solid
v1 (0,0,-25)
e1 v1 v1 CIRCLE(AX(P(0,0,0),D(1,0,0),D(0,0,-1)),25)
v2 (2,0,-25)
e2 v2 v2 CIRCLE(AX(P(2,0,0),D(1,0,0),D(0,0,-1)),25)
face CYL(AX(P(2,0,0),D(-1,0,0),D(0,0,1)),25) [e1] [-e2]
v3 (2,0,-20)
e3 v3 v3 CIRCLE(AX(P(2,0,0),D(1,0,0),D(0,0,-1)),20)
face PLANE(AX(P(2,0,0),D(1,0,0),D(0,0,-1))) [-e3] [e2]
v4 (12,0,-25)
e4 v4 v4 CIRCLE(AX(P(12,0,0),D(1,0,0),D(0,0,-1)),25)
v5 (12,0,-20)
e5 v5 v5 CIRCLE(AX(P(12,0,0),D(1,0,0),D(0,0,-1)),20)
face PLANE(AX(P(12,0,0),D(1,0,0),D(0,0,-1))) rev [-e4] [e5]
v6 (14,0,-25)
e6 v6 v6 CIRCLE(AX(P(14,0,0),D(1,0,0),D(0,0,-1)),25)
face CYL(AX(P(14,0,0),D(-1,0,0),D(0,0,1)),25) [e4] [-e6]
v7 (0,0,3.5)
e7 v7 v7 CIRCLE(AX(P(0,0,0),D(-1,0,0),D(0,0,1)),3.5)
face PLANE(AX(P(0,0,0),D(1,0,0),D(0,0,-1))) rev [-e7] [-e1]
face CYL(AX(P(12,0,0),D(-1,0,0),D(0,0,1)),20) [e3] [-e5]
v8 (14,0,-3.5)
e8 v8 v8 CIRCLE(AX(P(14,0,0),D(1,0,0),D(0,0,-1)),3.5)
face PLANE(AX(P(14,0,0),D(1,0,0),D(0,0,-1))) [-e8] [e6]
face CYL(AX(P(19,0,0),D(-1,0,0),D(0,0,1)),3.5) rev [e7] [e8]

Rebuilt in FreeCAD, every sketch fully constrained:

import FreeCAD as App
import Part
import Sketcher
from FreeCAD import Vector

doc = App.newDocument("Part")
body = doc.addObject("PartDesign::Body", "Body")

# Sketch on YZ plane
sketch1 = doc.addObject("Sketcher::SketchObject", "Sketch")
body.addObject(sketch1)
sketch1.AttachmentSupport = (doc.YZ_Plane, [""])
sketch1.MapMode = "FlatFace"
sketch1.addGeometry(Part.Circle(Vector(0, 0, 0), Vector(0, 0, 1), 25), False)
sketch1.addConstraint(Sketcher.Constraint("Coincident", 0, 3, -1, 1))
sketch1.addConstraint(Sketcher.Constraint("Diameter", 0, 50.0))
pad1 = doc.addObject("PartDesign::Pad", "Pad")
body.addObject(pad1)
pad1.Profile = sketch1
pad1.Length = 2

# Sketch on YZ plane
sketch2 = doc.addObject("Sketcher::SketchObject", "Sketch001")
body.addObject(sketch2)
sketch2.AttachmentSupport = (doc.YZ_Plane, [""])
sketch2.MapMode = "FlatFace"
sketch2.AttachmentOffset = App.Placement(Vector(0, 0, 2), App.Rotation())
sketch2.addGeometry(Part.Circle(Vector(0, 0, 0), Vector(0, 0, 1), 20), False)
sketch2.addConstraint(Sketcher.Constraint("Coincident", 0, 3, -1, 1))
sketch2.addConstraint(Sketcher.Constraint("Diameter", 0, 40.0))
pad2 = doc.addObject("PartDesign::Pad", "Pad001")
body.addObject(pad2)
pad2.Profile = sketch2
pad2.Length = 10

# Sketch on YZ plane
sketch3 = doc.addObject("Sketcher::SketchObject", "Sketch002")
body.addObject(sketch3)
sketch3.AttachmentSupport = (doc.YZ_Plane, [""])
sketch3.MapMode = "FlatFace"
sketch3.AttachmentOffset = App.Placement(Vector(0, 0, 12), App.Rotation())
sketch3.addGeometry(Part.Circle(Vector(0, 0, 0), Vector(0, 0, 1), 25), False)
sketch3.addConstraint(Sketcher.Constraint("Coincident", 0, 3, -1, 1))
sketch3.addConstraint(Sketcher.Constraint("Diameter", 0, 50.0))
pad3 = doc.addObject("PartDesign::Pad", "Pad002")
body.addObject(pad3)
pad3.Profile = sketch3
pad3.Length = 2

# Sketch on YZ plane
sketch4 = doc.addObject("Sketcher::SketchObject", "Sketch003")
body.addObject(sketch4)
sketch4.AttachmentSupport = (doc.YZ_Plane, [""])
sketch4.MapMode = "FlatFace"
sketch4.addGeometry(Part.Circle(Vector(0, 0, 0), Vector(0, 0, 1), 3.5), False)
sketch4.addConstraint(Sketcher.Constraint("Coincident", 0, 3, -1, 1))
sketch4.addConstraint(Sketcher.Constraint("Diameter", 0, 7.0))
pocket1 = doc.addObject("PartDesign::Pocket", "Pocket")
body.addObject(pocket1)
pocket1.Profile = sketch4
pocket1.Length = 19
pocket1.Reversed = True

doc.recompute()
